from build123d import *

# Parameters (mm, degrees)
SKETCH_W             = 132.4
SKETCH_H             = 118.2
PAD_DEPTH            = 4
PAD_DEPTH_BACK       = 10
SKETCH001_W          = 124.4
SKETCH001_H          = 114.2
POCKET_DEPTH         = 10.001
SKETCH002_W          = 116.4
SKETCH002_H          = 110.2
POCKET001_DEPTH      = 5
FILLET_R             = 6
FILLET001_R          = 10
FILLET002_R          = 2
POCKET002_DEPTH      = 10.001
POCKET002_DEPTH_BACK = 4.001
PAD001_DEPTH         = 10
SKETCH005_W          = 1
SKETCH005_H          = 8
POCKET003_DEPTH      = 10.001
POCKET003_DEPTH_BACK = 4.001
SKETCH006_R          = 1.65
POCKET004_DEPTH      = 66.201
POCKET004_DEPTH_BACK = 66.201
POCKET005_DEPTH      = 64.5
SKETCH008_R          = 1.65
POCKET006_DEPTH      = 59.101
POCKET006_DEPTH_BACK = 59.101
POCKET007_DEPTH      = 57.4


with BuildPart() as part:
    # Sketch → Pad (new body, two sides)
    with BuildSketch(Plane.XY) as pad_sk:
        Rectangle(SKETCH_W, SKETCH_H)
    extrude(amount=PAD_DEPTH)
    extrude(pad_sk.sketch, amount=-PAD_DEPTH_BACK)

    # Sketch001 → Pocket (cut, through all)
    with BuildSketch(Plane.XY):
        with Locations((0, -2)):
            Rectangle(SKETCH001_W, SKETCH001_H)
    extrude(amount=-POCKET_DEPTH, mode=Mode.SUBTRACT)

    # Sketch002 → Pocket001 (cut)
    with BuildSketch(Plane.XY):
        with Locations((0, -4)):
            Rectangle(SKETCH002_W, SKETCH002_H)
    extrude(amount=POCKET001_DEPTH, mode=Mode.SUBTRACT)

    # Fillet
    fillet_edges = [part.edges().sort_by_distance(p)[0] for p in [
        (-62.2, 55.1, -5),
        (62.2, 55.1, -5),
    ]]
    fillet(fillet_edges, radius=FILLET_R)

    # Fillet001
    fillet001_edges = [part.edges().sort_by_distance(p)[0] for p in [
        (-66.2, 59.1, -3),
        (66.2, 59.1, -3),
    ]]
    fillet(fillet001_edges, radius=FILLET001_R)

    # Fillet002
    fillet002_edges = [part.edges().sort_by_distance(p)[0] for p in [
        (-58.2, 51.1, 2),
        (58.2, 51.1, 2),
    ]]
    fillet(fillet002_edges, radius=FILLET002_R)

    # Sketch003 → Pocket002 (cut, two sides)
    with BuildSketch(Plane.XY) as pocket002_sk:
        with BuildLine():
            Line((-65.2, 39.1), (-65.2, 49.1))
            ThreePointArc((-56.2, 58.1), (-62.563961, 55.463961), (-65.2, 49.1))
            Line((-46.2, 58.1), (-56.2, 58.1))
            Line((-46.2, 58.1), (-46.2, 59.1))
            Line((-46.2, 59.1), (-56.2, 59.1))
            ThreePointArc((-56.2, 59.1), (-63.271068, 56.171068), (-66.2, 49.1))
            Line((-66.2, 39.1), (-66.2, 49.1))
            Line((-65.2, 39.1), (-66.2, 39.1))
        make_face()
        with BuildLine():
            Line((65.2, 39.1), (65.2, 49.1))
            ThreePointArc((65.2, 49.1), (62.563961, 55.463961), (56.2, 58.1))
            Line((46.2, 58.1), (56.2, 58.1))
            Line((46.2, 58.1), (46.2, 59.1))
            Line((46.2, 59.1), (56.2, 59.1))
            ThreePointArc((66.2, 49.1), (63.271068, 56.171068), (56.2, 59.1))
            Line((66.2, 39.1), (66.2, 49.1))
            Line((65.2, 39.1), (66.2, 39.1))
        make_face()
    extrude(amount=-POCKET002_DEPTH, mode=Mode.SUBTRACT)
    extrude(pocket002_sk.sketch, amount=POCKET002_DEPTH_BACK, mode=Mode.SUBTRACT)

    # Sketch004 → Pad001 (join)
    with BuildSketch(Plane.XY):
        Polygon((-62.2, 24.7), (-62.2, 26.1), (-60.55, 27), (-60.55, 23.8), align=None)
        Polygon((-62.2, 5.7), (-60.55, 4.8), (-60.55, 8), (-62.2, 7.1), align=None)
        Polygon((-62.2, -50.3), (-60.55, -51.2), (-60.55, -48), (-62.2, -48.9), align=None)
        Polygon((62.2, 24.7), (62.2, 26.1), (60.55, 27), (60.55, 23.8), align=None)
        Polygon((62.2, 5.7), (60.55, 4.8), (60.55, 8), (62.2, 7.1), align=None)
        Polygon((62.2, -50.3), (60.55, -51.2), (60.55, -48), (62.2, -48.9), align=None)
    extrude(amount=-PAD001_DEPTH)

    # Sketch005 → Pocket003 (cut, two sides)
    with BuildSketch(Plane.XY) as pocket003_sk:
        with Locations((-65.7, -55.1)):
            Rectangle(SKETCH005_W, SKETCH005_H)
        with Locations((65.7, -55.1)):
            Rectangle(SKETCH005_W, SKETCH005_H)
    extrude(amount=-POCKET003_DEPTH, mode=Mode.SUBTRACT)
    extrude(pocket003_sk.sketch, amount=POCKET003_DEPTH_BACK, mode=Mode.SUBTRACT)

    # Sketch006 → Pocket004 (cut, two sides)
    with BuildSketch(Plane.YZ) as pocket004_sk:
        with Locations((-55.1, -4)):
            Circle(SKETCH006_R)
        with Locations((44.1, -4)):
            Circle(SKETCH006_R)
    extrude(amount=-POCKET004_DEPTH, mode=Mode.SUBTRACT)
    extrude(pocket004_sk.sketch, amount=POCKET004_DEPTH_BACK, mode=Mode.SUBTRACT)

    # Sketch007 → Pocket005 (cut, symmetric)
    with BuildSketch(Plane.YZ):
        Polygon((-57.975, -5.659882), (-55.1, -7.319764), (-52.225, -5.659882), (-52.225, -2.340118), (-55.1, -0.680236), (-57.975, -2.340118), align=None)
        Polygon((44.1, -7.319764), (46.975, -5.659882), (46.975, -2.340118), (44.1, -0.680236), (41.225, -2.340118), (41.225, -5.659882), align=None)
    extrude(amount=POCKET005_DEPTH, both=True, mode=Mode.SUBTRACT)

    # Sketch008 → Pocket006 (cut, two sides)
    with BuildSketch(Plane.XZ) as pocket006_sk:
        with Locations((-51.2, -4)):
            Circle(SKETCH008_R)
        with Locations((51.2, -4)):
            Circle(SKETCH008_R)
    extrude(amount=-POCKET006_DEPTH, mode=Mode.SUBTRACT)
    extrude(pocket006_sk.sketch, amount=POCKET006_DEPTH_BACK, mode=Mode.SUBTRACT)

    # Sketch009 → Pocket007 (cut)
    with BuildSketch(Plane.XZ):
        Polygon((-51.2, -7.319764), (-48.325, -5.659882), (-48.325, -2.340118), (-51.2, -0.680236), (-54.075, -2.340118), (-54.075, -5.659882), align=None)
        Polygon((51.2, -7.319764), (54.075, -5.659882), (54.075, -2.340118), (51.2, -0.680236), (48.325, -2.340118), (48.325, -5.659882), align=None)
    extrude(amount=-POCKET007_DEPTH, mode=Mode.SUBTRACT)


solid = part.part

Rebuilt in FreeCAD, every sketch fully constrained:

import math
import FreeCAD as App
import Part
import Sketcher

V = App.Vector
Q = App.Units.Quantity


def edges_at(feature, points):
    """Names of the edges that pass closest to the given points."""
    edges = feature.Shape.Edges
    near = lambda p: min(range(len(edges)), key=lambda i: edges[i].distToShape(Part.Vertex(*p))[0])
    return sorted({f"Edge{near(p) + 1}" for p in points})

doc = App.newDocument("Part")
params = doc.addObject("Spreadsheet::Sheet", "Params")
for row, (alias, value) in enumerate([
    ("sketch1_width", "132.4 mm"),
    ("sketch1_height", "118.2 mm"),
    ("pad1_length", "4 mm"),
    ("pad1_length2", "10 mm"),
    ("sketch2_width", "124.4 mm"),
    ("sketch2_height", "114.2 mm"),
    ("sketch3_width", "116.4 mm"),
    ("sketch3_height", "110.2 mm"),
    ("pocket2_length", "5 mm"),
    ("fillet_radius", "6 mm"),
    ("fillet2_radius", "10 mm"),
    ("fillet3_radius", "2 mm"),
    ("sketch4_radius", "9 mm"),
    ("sketch4_radius2", "9.999999 mm"),
    ("sketch4_width", "10 mm"),
    ("sketch5_height", "1.4 mm"),
    ("sketch5_height2", "3.2 mm"),
    ("pad2_length", "10 mm"),
    ("sketch6_width", "1 mm"),
    ("sketch6_height", "8 mm"),
    ("sketch7_diameter", "3.3 mm"),
    ("pocket6_length", "129 mm"),
    ("sketch9_diameter", "3.3 mm"),
    ("pocket8_length", "57.4 mm"),
], start=1):
    params.set(f"A{row}", alias)
    params.set(f"B{row}", "=" + value)
    params.setAlias(f"B{row}", alias)

body = doc.addObject("PartDesign::Body", "Body")

# Sketch on XY plane
sketch1 = doc.addObject("Sketcher::SketchObject", "Sketch")
body.addObject(sketch1)
sketch1.AttachmentSupport = (doc.XY_Plane, [""])
sketch1.MapMode = "FlatFace"
sketch1.addGeometry(Part.LineSegment(V(-66, 59, 0), V(-66, -59, 0)), False)
sketch1.addGeometry(Part.LineSegment(V(-66, -59, 0), V(66, -59, 0)), False)
sketch1.addGeometry(Part.LineSegment(V(66, -59, 0), V(66, 59, 0)), False)
sketch1.addGeometry(Part.LineSegment(V(66, 59, 0), V(-66, 59, 0)), False)
sketch1.addConstraint(Sketcher.Constraint("Coincident", 0, 2, 1, 1))
sketch1.addConstraint(Sketcher.Constraint("Coincident", 1, 2, 2, 1))
sketch1.addConstraint(Sketcher.Constraint("Coincident", 2, 2, 3, 1))
sketch1.addConstraint(Sketcher.Constraint("Coincident", 3, 2, 0, 1))
sketch1.addConstraint(Sketcher.Constraint("Vertical", 0))
sketch1.addConstraint(Sketcher.Constraint("Horizontal", 1))
sketch1.addConstraint(Sketcher.Constraint("Vertical", 2))
sketch1.addConstraint(Sketcher.Constraint("Horizontal", 3))
sketch1.addConstraint(Sketcher.Constraint("Symmetric", 0, 2, 2, 2, -1, 1))
sketch1.addConstraint(Sketcher.Constraint("DistanceX", 1, 1, 1, 2, Q("132.4 mm")))
sketch1.addConstraint(Sketcher.Constraint("DistanceY", 0, 2, 0, 1, Q("118.2 mm")))
sketch1.setExpression("Constraints[9]", "Params.sketch1_width")
sketch1.setExpression("Constraints[10]", "Params.sketch1_height")
pad1 = doc.addObject("PartDesign::Pad", "Pad")
body.addObject(pad1)
pad1.Profile = sketch1
pad1.Type = "TwoLengths"
pad1.setExpression("Length", "Params.pad1_length")
pad1.setExpression("Length2", "Params.pad1_length2")

# Sketch on XY plane
sketch2 = doc.addObject("Sketcher::SketchObject", "Sketch001")
body.addObject(sketch2)
sketch2.AttachmentSupport = (doc.XY_Plane, [""])
sketch2.MapMode = "FlatFace"
sketch2.addGeometry(Part.LineSegment(V(-62, 55, 0), V(-62, -59, 0)), False)
sketch2.addGeometry(Part.LineSegment(V(-62, -59, 0), V(62, -59, 0)), False)
sketch2.addGeometry(Part.LineSegment(V(62, -59, 0), V(62, 55, 0)), False)
sketch2.addGeometry(Part.LineSegment(V(62, 55, 0), V(-62, 55, 0)), False)
sketch2.addConstraint(Sketcher.Constraint("Coincident", 0, 2, 1, 1))
sketch2.addConstraint(Sketcher.Constraint("Coincident", 1, 2, 2, 1))
sketch2.addConstraint(Sketcher.Constraint("Coincident", 2, 2, 3, 1))
sketch2.addConstraint(Sketcher.Constraint("Coincident", 3, 2, 0, 1))
sketch2.addConstraint(Sketcher.Constraint("Vertical", 0))
sketch2.addConstraint(Sketcher.Constraint("Horizontal", 1))
sketch2.addConstraint(Sketcher.Constraint("Vertical", 2))
sketch2.addConstraint(Sketcher.Constraint("Horizontal", 3))
sketch2.addConstraint(Sketcher.Constraint("DistanceX", 1, 1, 1, 2, Q("124.4 mm")))
sketch2.addConstraint(Sketcher.Constraint("DistanceY", 0, 2, 0, 1, Q("114.2 mm")))
sketch2.addConstraint(Sketcher.Constraint("DistanceX", 0, 2, -1, 1, Q("62.2 mm")))
sketch2.addConstraint(Sketcher.Constraint("DistanceY", 0, 2, -1, 1, Q("59.1 mm")))
sketch2.setExpression("Constraints[8]", "Params.sketch2_width")
sketch2.setExpression("Constraints[9]", "Params.sketch2_height")
pocket1 = doc.addObject("PartDesign::Pocket", "Pocket")
body.addObject(pocket1)
pocket1.Profile = sketch2
pocket1.Type = "ThroughAll"

# Sketch on XY plane
sketch3 = doc.addObject("Sketcher::SketchObject", "Sketch002")
body.addObject(sketch3)
sketch3.AttachmentSupport = (doc.XY_Plane, [""])
sketch3.MapMode = "FlatFace"
sketch3.addGeometry(Part.LineSegment(V(-58, 51, 0), V(-58, -59, 0)), False)
sketch3.addGeometry(Part.LineSegment(V(-58, -59, 0), V(58, -59, 0)), False)
sketch3.addGeometry(Part.LineSegment(V(58, -59, 0), V(58, 51, 0)), False)
sketch3.addGeometry(Part.LineSegment(V(58, 51, 0), V(-58, 51, 0)), False)
sketch3.addConstraint(Sketcher.Constraint("Coincident", 0, 2, 1, 1))
sketch3.addConstraint(Sketcher.Constraint("Coincident", 1, 2, 2, 1))
sketch3.addConstraint(Sketcher.Constraint("Coincident", 2, 2, 3, 1))
sketch3.addConstraint(Sketcher.Constraint("Coincident", 3, 2, 0, 1))
sketch3.addConstraint(Sketcher.Constraint("Vertical", 0))
sketch3.addConstraint(Sketcher.Constraint("Horizontal", 1))
sketch3.addConstraint(Sketcher.Constraint("Vertical", 2))
sketch3.addConstraint(Sketcher.Constraint("Horizontal", 3))
sketch3.addConstraint(Sketcher.Constraint("DistanceX", 1, 1, 1, 2, Q("116.4 mm")))
sketch3.addConstraint(Sketcher.Constraint("DistanceY", 0, 2, 0, 1, Q("110.2 mm")))
sketch3.addConstraint(Sketcher.Constraint("DistanceX", 0, 2, -1, 1, Q("58.2 mm")))
sketch3.addConstraint(Sketcher.Constraint("DistanceY", 0, 2, -1, 1, Q("59.1 mm")))
sketch3.setExpression("Constraints[8]", "Params.sketch3_width")
sketch3.setExpression("Constraints[9]", "Params.sketch3_height")
pocket2 = doc.addObject("PartDesign::Pocket", "Pocket001")
body.addObject(pocket2)
pocket2.Profile = sketch3
pocket2.setExpression("Length", "Params.pocket2_length")
pocket2.Reversed = True
doc.recompute()

fillet = doc.addObject("PartDesign::Fillet", "Fillet")
body.addObject(fillet)
fillet.Base = (pocket2, edges_at(pocket2, [(-62.2, 55.1, -5), (62.2, 55.1, -5)]))
fillet.setExpression("Radius", "Params.fillet_radius")
doc.recompute()

fillet2 = doc.addObject("PartDesign::Fillet", "Fillet001")
body.addObject(fillet2)
fillet2.Base = (fillet, edges_at(fillet, [(-66.2, 59.1, -3), (66.2, 59.1, -3)]))
fillet2.setExpression("Radius", "Params.fillet2_radius")
doc.recompute()

fillet3 = doc.addObject("PartDesign::Fillet", "Fillet002")
body.addObject(fillet3)
fillet3.Base = (fillet2, edges_at(fillet2, [(-58.2, 51.1, 2), (58.2, 51.1, 2)]))
fillet3.setExpression("Radius", "Params.fillet3_radius")

# Sketch on XY plane
sketch4 = doc.addObject("Sketcher::SketchObject", "Sketch003")
body.addObject(sketch4)
sketch4.AttachmentSupport = (doc.XY_Plane, [""])
sketch4.MapMode = "FlatFace"
sketch4.addGeometry(Part.LineSegment(V(-65.2, 39.1, 0), V(-65.2, 49.1, 0)), False)
sketch4.addGeometry(Part.ArcOfCircle(Part.Circle(V(-56.2, 49.1, 0), V(0, 0, 1), 9), math.radians(90), math.radians(180)), False)
sketch4.addGeometry(Part.LineSegment(V(-56.2, 58.1, 0), V(-46.2, 58.1, 0)), False)
sketch4.addGeometry(Part.LineSegment(V(-46.2, 58.1, 0), V(-46.2, 59.1, 0)), False)
sketch4.addGeometry(Part.LineSegment(V(-46.2, 59.1, 0), V(-56.2, 59.1, 0)), False)
sketch4.addGeometry(Part.ArcOfCircle(Part.Circle(V(-56.2, 49.1, 0), V(0, 0, 1), 10), math.radians(90), math.radians(180)), False)
sketch4.addGeometry(Part.LineSegment(V(-66.2, 49.1, 0), V(-66.2, 39.1, 0)), False)
sketch4.addGeometry(Part.LineSegment(V(-66.2, 39.1, 0), V(-65.2, 39.1, 0)), False)
sketch4.addGeometry(Part.LineSegment(V(65.2, 49.1, 0), V(65.2, 39.1, 0)), False)
sketch4.addGeometry(Part.LineSegment(V(65.2, 39.1, 0), V(66.2, 39.1, 0)), False)
sketch4.addGeometry(Part.LineSegment(V(66.2, 39.1, 0), V(66.2, 49.1, 0)), False)
sketch4.addGeometry(Part.ArcOfCircle(Part.Circle(V(56.2, 49.1, 0), V(0, 0, 1), 10), math.radians(0), math.radians(90)), False)
sketch4.addGeometry(Part.LineSegment(V(56.2, 59.1, 0), V(46.2, 59.1, 0)), False)
sketch4.addGeometry(Part.LineSegment(V(46.2, 59.1, 0), V(46.2, 58.1, 0)), False)
sketch4.addGeometry(Part.LineSegment(V(46.2, 58.1, 0), V(56.2, 58.1, 0)), False)
sketch4.addGeometry(Part.ArcOfCircle(Part.Circle(V(56.2, 49.1, 0), V(0, 0, 1), 9), math.radians(0), math.radians(90)), False)
sketch4.addConstraint(Sketcher.Constraint("Tangent", 0, 2, 1, 2))
sketch4.addConstraint(Sketcher.Constraint("Tangent", 1, 1, 2, 1))
sketch4.addConstraint(Sketcher.Constraint("Coincident", 2, 2, 3, 1))
sketch4.addConstraint(Sketcher.Constraint("Coincident", 3, 2, 4, 1))
sketch4.addConstraint(Sketcher.Constraint("Tangent", 4, 2, 5, 1))
sketch4.addConstraint(Sketcher.Constraint("Tangent", 5, 2, 6, 1))
sketch4.addConstraint(Sketcher.Constraint("Coincident", 6, 2, 7, 1))
sketch4.addConstraint(Sketcher.Constraint("Coincident", 7, 2, 0, 1))
sketch4.addConstraint(Sketcher.Constraint("Coincident", 8, 2, 9, 1))
sketch4.addConstraint(Sketcher.Constraint("Coincident", 9, 2, 10, 1))
sketch4.addConstraint(Sketcher.Constraint("Tangent", 10, 2, 11, 1))
sketch4.addConstraint(Sketcher.Constraint("Tangent", 11, 2, 12, 1))
sketch4.addConstraint(Sketcher.Constraint("Coincident", 12, 2, 13, 1))
sketch4.addConstraint(Sketcher.Constraint("Coincident", 13, 2, 14, 1))
sketch4.addConstraint(Sketcher.Constraint("Tangent", 14, 2, 15, 2))
sketch4.addConstraint(Sketcher.Constraint("Tangent", 15, 1, 8, 1))
sketch4.addConstraint(Sketcher.Constraint("Vertical", 0))
sketch4.addConstraint(Sketcher.Constraint("Horizontal", 2))
sketch4.addConstraint(Sketcher.Constraint("Vertical", 3))
sketch4.addConstraint(Sketcher.Constraint("Horizontal", 4))
sketch4.addConstraint(Sketcher.Constraint("Vertical", 6))
sketch4.addConstraint(Sketcher.Constraint("Horizontal", 7))
sketch4.addConstraint(Sketcher.Constraint("Vertical", 8))
sketch4.addConstraint(Sketcher.Constraint("Horizontal", 9))
sketch4.addConstraint(Sketcher.Constraint("Vertical", 10))
sketch4.addConstraint(Sketcher.Constraint("Horizontal", 12))
sketch4.addConstraint(Sketcher.Constraint("Vertical", 13))
sketch4.addConstraint(Sketcher.Constraint("Horizontal", 14))
sketch4.addConstraint(Sketcher.Constraint("Coincident", 5, 3, 1, 3))
sketch4.addConstraint(Sketcher.Constraint("Coincident", 15, 3, 11, 3))
sketch4.addConstraint(Sketcher.Constraint("Equal", 5, 11))
sketch4.addConstraint(Sketcher.Constraint("Equal", 1, 15))
sketch4.addConstraint(Sketcher.Constraint("Symmetric", 1, 3, 11, 3, -2))
sketch4.addConstraint(Sketcher.Constraint("Horizontal", 7, 2, 8, 2))
sketch4.addConstraint(Sketcher.Constraint("Equal", 4, 12))
sketch4.addConstraint(Sketcher.Constraint("Equal", 14, 0))
sketch4.addConstraint(Sketcher.Constraint("Radius", 1, Q("9 mm")))
sketch4.addConstraint(Sketcher.Constraint("Radius", 5, Q("9.999999 mm")))
sketch4.addConstraint(Sketcher.Constraint("DistanceX", 2, 1, 2, 2, Q("10 mm")))
sketch4.addConstraint(Sketcher.Constraint("DistanceX", 1, 3, -1, 1, Q("56.2 mm")))
sketch4.addConstraint(Sketcher.Constraint("DistanceY", -1, 1, 1, 3, Q("49.1 mm")))
sketch4.setExpression("Constraints[36]", "Params.sketch4_radius")
sketch4.setExpression("Constraints[37]", "Params.sketch4_radius2")
sketch4.setExpression("Constraints[38]", "Params.sketch4_width")
pocket3 = doc.addObject("PartDesign::Pocket", "Pocket002")
body.addObject(pocket3)
pocket3.Profile = sketch4
pocket3.Type = "ThroughAll"
pocket3.Midplane = True

# Sketch on XY plane
sketch5 = doc.addObject("Sketcher::SketchObject", "Sketch004")
body.addObject(sketch5)
sketch5.AttachmentSupport = (doc.XY_Plane, [""])
sketch5.MapMode = "FlatFace"
sketch5.addGeometry(Part.LineSegment(V(-62.2, 26.1, 0), V(-62.2, 24.7, 0)), False)
sketch5.addGeometry(Part.LineSegment(V(-62.2, 24.7, 0), V(-60.5, 23.8, 0)), False)
sketch5.addGeometry(Part.LineSegment(V(-60.5, 23.8, 0), V(-60.5, 27, 0)), False)
sketch5.addGeometry(Part.LineSegment(V(-60.5, 27, 0), V(-62.2, 26.1, 0)), False)
sketch5.addGeometry(Part.LineSegment(V(-62.2, 5.7, 0), V(-60.5, 4.8, 0)), False)
sketch5.addGeometry(Part.LineSegment(V(-60.5, 4.8, 0), V(-60.5, 8, 0)), False)
sketch5.addGeometry(Part.LineSegment(V(-60.5, 8, 0), V(-62.2, 7.1, 0)), False)
sketch5.addGeometry(Part.LineSegment(V(-62.2, 7.1, 0), V(-62.2, 5.7, 0)), False)
sketch5.addGeometry(Part.LineSegment(V(-62.2, -50.3, 0), V(-60.5, -51.2, 0)), False)
sketch5.addGeometry(Part.LineSegment(V(-60.5, -51.2, 0), V(-60.5, -48, 0)), False)
sketch5.addGeometry(Part.LineSegment(V(-60.5, -48, 0), V(-62.2, -48.9, 0)), False)
sketch5.addGeometry(Part.LineSegment(V(-62.2, -48.9, 0), V(-62.2, -50.3, 0)), False)
sketch5.addGeometry(Part.LineSegment(V(62.2, 24.7, 0), V(62.2, 26.1, 0)), False)
sketch5.addGeometry(Part.LineSegment(V(62.2, 26.1, 0), V(60.5, 27, 0)), False)
sketch5.addGeometry(Part.LineSegment(V(60.5, 27, 0), V(60.5, 23.8, 0)), False)
sketch5.addGeometry(Part.LineSegment(V(60.5, 23.8, 0), V(62.2, 24.7, 0)), False)
sketch5.addGeometry(Part.LineSegment(V(60.5, 4.8, 0), V(62.2, 5.7, 0)), False)
sketch5.addGeometry(Part.LineSegment(V(62.2, 5.7, 0), V(62.2, 7.1, 0)), False)
sketch5.addGeometry(Part.LineSegment(V(62.2, 7.1, 0), V(60.5, 8, 0)), False)
sketch5.addGeometry(Part.LineSegment(V(60.5, 8, 0), V(60.5, 4.8, 0)), False)
sketch5.addGeometry(Part.LineSegment(V(60.5, -51.2, 0), V(62.2, -50.3, 0)), False)
sketch5.addGeometry(Part.LineSegment(V(62.2, -50.3, 0), V(62.2, -48.9, 0)), False)
sketch5.addGeometry(Part.LineSegment(V(62.2, -48.9, 0), V(60.5, -48, 0)), False)
sketch5.addGeometry(Part.LineSegment(V(60.5, -48, 0), V(60.5, -51.2, 0)), False)
sketch5.addConstraint(Sketcher.Constraint("Coincident", 0, 2, 1, 1))
sketch5.addConstraint(Sketcher.Constraint("Coincident", 1, 2, 2, 1))
sketch5.addConstraint(Sketcher.Constraint("Coincident", 2, 2, 3, 1))
sketch5.addConstraint(Sketcher.Constraint("Coincident", 3, 2, 0, 1))
sketch5.addConstraint(Sketcher.Constraint("Coincident", 4, 2, 5, 1))
sketch5.addConstraint(Sketcher.Constraint("Coincident", 5, 2, 6, 1))
sketch5.addConstraint(Sketcher.Constraint("Coincident", 6, 2, 7, 1))
sketch5.addConstraint(Sketcher.Constraint("Coincident", 7, 2, 4, 1))
sketch5.addConstraint(Sketcher.Constraint("Coincident", 8, 2, 9, 1))
sketch5.addConstraint(Sketcher.Constraint("Coincident", 9, 2, 10, 1))
sketch5.addConstraint(Sketcher.Constraint("Coincident", 10, 2, 11, 1))
sketch5.addConstraint(Sketcher.Constraint("Coincident", 11, 2, 8, 1))
sketch5.addConstraint(Sketcher.Constraint("Coincident", 12, 2, 13, 1))
sketch5.addConstraint(Sketcher.Constraint("Coincident", 13, 2, 14, 1))
sketch5.addConstraint(Sketcher.Constraint("Coincident", 14, 2, 15, 1))
sketch5.addConstraint(Sketcher.Constraint("Coincident", 15, 2, 12, 1))
sketch5.addConstraint(Sketcher.Constraint("Coincident", 16, 2, 17, 1))
sketch5.addConstraint(Sketcher.Constraint("Coincident", 17, 2, 18, 1))
sketch5.addConstraint(Sketcher.Constraint("Coincident", 18, 2, 19, 1))
sketch5.addConstraint(Sketcher.Constraint("Coincident", 19, 2, 16, 1))
sketch5.addConstraint(Sketcher.Constraint("Coincident", 20, 2, 21, 1))
sketch5.addConstraint(Sketcher.Constraint("Coincident", 21, 2, 22, 1))
sketch5.addConstraint(Sketcher.Constraint("Coincident", 22, 2, 23, 1))
sketch5.addConstraint(Sketcher.Constraint("Coincident", 23, 2, 20, 1))
sketch5.addConstraint(Sketcher.Constraint("Vertical", 0))
sketch5.addConstraint(Sketcher.Constraint("Vertical", 2))
sketch5.addConstraint(Sketcher.Constraint("Vertical", 5))
sketch5.addConstraint(Sketcher.Constraint("Vertical", 7))
sketch5.addConstraint(Sketcher.Constraint("Vertical", 9))
sketch5.addConstraint(Sketcher.Constraint("Vertical", 11))
sketch5.addConstraint(Sketcher.Constraint("Vertical", 12))
sketch5.addConstraint(Sketcher.Constraint("Vertical", 14))
sketch5.addConstraint(Sketcher.Constraint("Vertical", 17))
sketch5.addConstraint(Sketcher.Constraint("Vertical", 19))
sketch5.addConstraint(Sketcher.Constraint("Vertical", 21))
sketch5.addConstraint(Sketcher.Constraint("Vertical", 23))
sketch5.addConstraint(Sketcher.Constraint("Symmetric", 3, 2, 12, 2, -2))
sketch5.addConstraint(Sketcher.Constraint("Symmetric", 2, 2, 13, 2, -2))
sketch5.addConstraint(Sketcher.Constraint("Symmetric", 7, 2, 16, 2, -2))
sketch5.addConstraint(Sketcher.Constraint("Symmetric", 5, 2, 18, 2, -2))
sketch5.addConstraint(Sketcher.Constraint("Symmetric", 11, 2, 20, 2, -2))
sketch5.addConstraint(Sketcher.Constraint("Symmetric", 9, 2, 22, 2, -2))
sketch5.addConstraint(Sketcher.Constraint("Parallel", 1, 4))
sketch5.addConstraint(Sketcher.Constraint("Parallel", 3, 6))
sketch5.addConstraint(Sketcher.Constraint("Parallel", 4, 8))
sketch5.addConstraint(Sketcher.Constraint("Parallel", 6, 10))
sketch5.addConstraint(Sketcher.Constraint("Parallel", 8, 13))
sketch5.addConstraint(Sketcher.Constraint("Parallel", 10, 15))
sketch5.addConstraint(Sketcher.Constraint("Parallel", 15, 16))
sketch5.addConstraint(Sketcher.Constraint("Parallel", 13, 18))
sketch5.addConstraint(Sketcher.Constraint("Parallel", 16, 20))
sketch5.addConstraint(Sketcher.Constraint("Parallel", 18, 22))
sketch5.addConstraint(Sketcher.Constraint("Horizontal", 1, 2, 14, 2))
sketch5.addConstraint(Sketcher.Constraint("Vertical", 2, 2, 4, 2))
sketch5.addConstraint(Sketcher.Constraint("Vertical", 3, 2, 6, 2))
sketch5.addConstraint(Sketcher.Constraint("Vertical", 5, 2, 8, 2))
sketch5.addConstraint(Sketcher.Constraint("Vertical", 7, 2, 10, 2))
sketch5.addConstraint(Sketcher.Constraint("Equal", 2, 5))
sketch5.addConstraint(Sketcher.Constraint("Equal", 5, 9))
sketch5.addConstraint(Sketcher.Constraint("DistanceY", 0, 2, 0, 1, Q("1.4 mm")))
sketch5.addConstraint(Sketcher.Constraint("DistanceY", 2, 1, 2, 2, Q("3.2 mm")))
sketch5.addConstraint(Sketcher.Constraint("DistanceY", -1, 1, 2, 2, Q("27 mm")))
sketch5.addConstraint(Sketcher.Constraint("DistanceY", -1, 1, 5, 2, Q("8 mm")))
sketch5.addConstraint(Sketcher.Constraint("DistanceY", 9, 2, -1, 1, Q("48 mm")))
sketch5.addConstraint(Sketcher.Constraint("DistanceX", 0, 2, -1, 1, Q("62.2 mm")))
sketch5.addConstraint(Sketcher.Constraint("DistanceX", 2, 2, 13, 2, Q("121.1 mm")))
sketch5.setExpression("Constraints[59]", "Params.sketch5_height")
sketch5.setExpression("Constraints[60]", "Params.sketch5_height2")
pad2 = doc.addObject("PartDesign::Pad", "Pad001")
body.addObject(pad2)
pad2.Profile = sketch5
pad2.setExpression("Length", "Params.pad2_length")
pad2.Reversed = True

# Sketch on XY plane
sketch6 = doc.addObject("Sketcher::SketchObject", "Sketch005")
body.addObject(sketch6)
sketch6.AttachmentSupport = (doc.XY_Plane, [""])
sketch6.MapMode = "FlatFace"
sketch6.addGeometry(Part.LineSegment(V(-66.2, -51.1, 0), V(-66.2, -59.1, 0)), False)
sketch6.addGeometry(Part.LineSegment(V(-66.2, -59.1, 0), V(-65.2, -59.1, 0)), False)
sketch6.addGeometry(Part.LineSegment(V(-65.2, -59.1, 0), V(-65.2, -51.1, 0)), False)
sketch6.addGeometry(Part.LineSegment(V(-65.2, -51.1, 0), V(-66.2, -51.1, 0)), False)
sketch6.addGeometry(Part.LineSegment(V(65.2, -51.1, 0), V(65.2, -59.1, 0)), False)
sketch6.addGeometry(Part.LineSegment(V(65.2, -59.1, 0), V(66.2, -59.1, 0)), False)
sketch6.addGeometry(Part.LineSegment(V(66.2, -59.1, 0), V(66.2, -51.1, 0)), False)
sketch6.addGeometry(Part.LineSegment(V(66.2, -51.1, 0), V(65.2, -51.1, 0)), False)
sketch6.addConstraint(Sketcher.Constraint("Coincident", 0, 2, 1, 1))
sketch6.addConstraint(Sketcher.Constraint("Coincident", 1, 2, 2, 1))
sketch6.addConstraint(Sketcher.Constraint("Coincident", 2, 2, 3, 1))
sketch6.addConstraint(Sketcher.Constraint("Coincident", 3, 2, 0, 1))
sketch6.addConstraint(Sketcher.Constraint("Coincident", 4, 2, 5, 1))
sketch6.addConstraint(Sketcher.Constraint("Coincident", 5, 2, 6, 1))
sketch6.addConstraint(Sketcher.Constraint("Coincident", 6, 2, 7, 1))
sketch6.addConstraint(Sketcher.Constraint("Coincident", 7, 2, 4, 1))
sketch6.addConstraint(Sketcher.Constraint("Vertical", 0))
sketch6.addConstraint(Sketcher.Constraint("Horizontal", 1))
sketch6.addConstraint(Sketcher.Constraint("Vertical", 2))
sketch6.addConstraint(Sketcher.Constraint("Horizontal", 3))
sketch6.addConstraint(Sketcher.Constraint("Vertical", 4))
sketch6.addConstraint(Sketcher.Constraint("Horizontal", 5))
sketch6.addConstraint(Sketcher.Constraint("Vertical", 6))
sketch6.addConstraint(Sketcher.Constraint("Horizontal", 7))
sketch6.addConstraint(Sketcher.Constraint("Symmetric", 1, 2, 4, 2, -2))
sketch6.addConstraint(Sketcher.Constraint("Symmetric", 3, 2, 6, 2, -2))
sketch6.addConstraint(Sketcher.Constraint("DistanceX", 1, 1, 1, 2, Q("1 mm")))
sketch6.addConstraint(Sketcher.Constraint("DistanceY", 0, 2, 0, 1, Q("8 mm")))
sketch6.addConstraint(Sketcher.Constraint("DistanceX", 0, 2, -1, 1, Q("66.2 mm")))
sketch6.addConstraint(Sketcher.Constraint("DistanceY", 0, 2, -1, 1, Q("59.1 mm")))
sketch6.setExpression("Constraints[18]", "Params.sketch6_width")
sketch6.setExpression("Constraints[19]", "Params.sketch6_height")
pocket4 = doc.addObject("PartDesign::Pocket", "Pocket003")
body.addObject(pocket4)
pocket4.Profile = sketch6
pocket4.Type = "ThroughAll"
pocket4.Midplane = True

# Sketch on YZ plane
sketch7 = doc.addObject("Sketcher::SketchObject", "Sketch006")
body.addObject(sketch7)
sketch7.AttachmentSupport = (doc.YZ_Plane, [""])
sketch7.MapMode = "FlatFace"
sketch7.addGeometry(Part.Circle(V(-55.1, -4, 0), V(0, 0, 1), 1.6), False)
sketch7.addGeometry(Part.Circle(V(44.1, -4, 0), V(0, 0, 1), 1.6), False)
sketch7.addConstraint(Sketcher.Constraint("Equal", 0, 1))
sketch7.addConstraint(Sketcher.Constraint("Horizontal", 0, 3, 1, 3))
sketch7.addConstraint(Sketcher.Constraint("Diameter", 0, Q("3.3 mm")))
sketch7.addConstraint(Sketcher.Constraint("DistanceY", 0, 3, -1, 1, Q("4 mm")))
sketch7.addConstraint(Sketcher.Constraint("DistanceX", 0, 3, -1, 1, Q("55.1 mm")))
sketch7.addConstraint(Sketcher.Constraint("DistanceX", -1, 1, 1, 3, Q("44.1 mm")))
sketch7.setExpression("Constraints[2]", "Params.sketch7_diameter")
pocket5 = doc.addObject("PartDesign::Pocket", "Pocket004")
body.addObject(pocket5)
pocket5.Profile = sketch7
pocket5.Type = "ThroughAll"
pocket5.Midplane = True

# Sketch on YZ plane
sketch8 = doc.addObject("Sketcher::SketchObject", "Sketch007")
body.addObject(sketch8)
sketch8.AttachmentSupport = (doc.YZ_Plane, [""])
sketch8.MapMode = "FlatFace"
sketch8.addGeometry(Part.LineSegment(V(-58, -5.7, 0), V(-55.1, -7.3, 0)), False)
sketch8.addGeometry(Part.LineSegment(V(-55.1, -7.3, 0), V(-52.2, -5.7, 0)), False)
sketch8.addGeometry(Part.LineSegment(V(-52.2, -5.7, 0), V(-52.2, -2.3, 0)), False)
sketch8.addGeometry(Part.LineSegment(V(-52.2, -2.3, 0), V(-55.1, -0.7, 0)), False)
sketch8.addGeometry(Part.LineSegment(V(-55.1, -0.7, 0), V(-58, -2.3, 0)), False)
sketch8.addGeometry(Part.LineSegment(V(-58, -2.3, 0), V(-58, -5.7, 0)), False)
sketch8.addGeometry(Part.LineSegment(V(44.1, -7.3, 0), V(47, -5.7, 0)), False)
sketch8.addGeometry(Part.LineSegment(V(47, -5.7, 0), V(47, -2.3, 0)), False)
sketch8.addGeometry(Part.LineSegment(V(47, -2.3, 0), V(44.1, -0.7, 0)), False)
sketch8.addGeometry(Part.LineSegment(V(44.1, -0.7, 0), V(41.2, -2.3, 0)), False)
sketch8.addGeometry(Part.LineSegment(V(41.2, -2.3, 0), V(41.2, -5.7, 0)), False)
sketch8.addGeometry(Part.LineSegment(V(41.2, -5.7, 0), V(44.1, -7.3, 0)), False)
sketch8.addConstraint(Sketcher.Constraint("Coincident", 0, 2, 1, 1))
sketch8.addConstraint(Sketcher.Constraint("Coincident", 1, 2, 2, 1))
sketch8.addConstraint(Sketcher.Constraint("Coincident", 2, 2, 3, 1))
sketch8.addConstraint(Sketcher.Constraint("Coincident", 3, 2, 4, 1))
sketch8.addConstraint(Sketcher.Constraint("Coincident", 4, 2, 5, 1))
sketch8.addConstraint(Sketcher.Constraint("Coincident", 5, 2, 0, 1))
sketch8.addConstraint(Sketcher.Constraint("Coincident", 6, 2, 7, 1))
sketch8.addConstraint(Sketcher.Constraint("Coincident", 7, 2, 8, 1))
sketch8.addConstraint(Sketcher.Constraint("Coincident", 8, 2, 9, 1))
sketch8.addConstraint(Sketcher.Constraint("Coincident", 9, 2, 10, 1))
sketch8.addConstraint(Sketcher.Constraint("Coincident", 10, 2, 11, 1))
sketch8.addConstraint(Sketcher.Constraint("Coincident", 11, 2, 6, 1))
sketch8.addConstraint(Sketcher.Constraint("Vertical", 2))
sketch8.addConstraint(Sketcher.Constraint("Vertical", 5))
sketch8.addConstraint(Sketcher.Constraint("Vertical", 7))
sketch8.addConstraint(Sketcher.Constraint("Vertical", 10))
sketch8.addConstraint(Sketcher.Constraint("Parallel", 0, 3))
sketch8.addConstraint(Sketcher.Constraint("Parallel", 1, 4))
sketch8.addConstraint(Sketcher.Constraint("Parallel", 4, 6))
sketch8.addConstraint(Sketcher.Constraint("Parallel", 3, 8))
sketch8.addConstraint(Sketcher.Constraint("Parallel", 6, 9))
sketch8.addConstraint(Sketcher.Constraint("Parallel", 8, 11))
sketch8.addConstraint(Sketcher.Constraint("Horizontal", 2, 2, 4, 2))
sketch8.addConstraint(Sketcher.Constraint("Horizontal", 1, 2, 5, 2))
sketch8.addConstraint(Sketcher.Constraint("Horizontal", 5, 2, 6, 2))
sketch8.addConstraint(Sketcher.Constraint("Horizontal", 4, 2, 7, 2))
sketch8.addConstraint(Sketcher.Constraint("Horizontal", 3, 2, 8, 2))
sketch8.addConstraint(Sketcher.Constraint("Horizontal", 7, 2, 9, 2))
sketch8.addConstraint(Sketcher.Constraint("Horizontal", 6, 2, 10, 2))
sketch8.addConstraint(Sketcher.Constraint("Vertical", 0, 2, 3, 2))
sketch8.addConstraint(Sketcher.Constraint("Angle", 0, Q("-30 deg")))
sketch8.addConstraint(Sketcher.Constraint("DistanceX", 0, 2, -1, 1, Q("55.1 mm")))
sketch8.addConstraint(Sketcher.Constraint("DistanceX", -1, 1, 8, 2, Q("44.1 mm")))
sketch8.addConstraint(Sketcher.Constraint("DistanceX", 4, 2, 2, 2, Q("5.75 mm")))
sketch8.addConstraint(Sketcher.Constraint("DistanceY", 2, 1, 2, 2, Q("3.319764 mm")))
sketch8.addConstraint(Sketcher.Constraint("DistanceY", 1, 2, -1, 1, Q("5.659882 mm")))
pocket6 = doc.addObject("PartDesign::Pocket", "Pocket005")
body.addObject(pocket6)
pocket6.Profile = sketch8
pocket6.setExpression("Length", "Params.pocket6_length")
pocket6.Midplane = True

# Sketch on XZ plane
sketch9 = doc.addObject("Sketcher::SketchObject", "Sketch008")
body.addObject(sketch9)
sketch9.AttachmentSupport = (doc.XZ_Plane, [""])
sketch9.MapMode = "FlatFace"
sketch9.addGeometry(Part.Circle(V(-51.2, -4, 0), V(0, 0, 1), 1.6), False)
sketch9.addGeometry(Part.Circle(V(51.2, -4, 0), V(0, 0, 1), 1.6), False)
sketch9.addConstraint(Sketcher.Constraint("Equal", 0, 1))
sketch9.addConstraint(Sketcher.Constraint("Symmetric", 0, 3, 1, 3, -2))
sketch9.addConstraint(Sketcher.Constraint("Diameter", 0, Q("3.3 mm")))
sketch9.addConstraint(Sketcher.Constraint("DistanceY", 0, 3, -1, 1, Q("4 mm")))
sketch9.addConstraint(Sketcher.Constraint("DistanceX", 0, 3, -1, 1, Q("51.2 mm")))
sketch9.setExpression("Constraints[2]", "Params.sketch9_diameter")
pocket7 = doc.addObject("PartDesign::Pocket", "Pocket006")
body.addObject(pocket7)
pocket7.Profile = sketch9
pocket7.Type = "ThroughAll"
pocket7.Midplane = True

# Sketch on XZ plane
sketch10 = doc.addObject("Sketcher::SketchObject", "Sketch009")
body.addObject(sketch10)
sketch10.AttachmentSupport = (doc.XZ_Plane, [""])
sketch10.MapMode = "FlatFace"
sketch10.addGeometry(Part.LineSegment(V(-51.2, -7.3, 0), V(-48.3, -5.7, 0)), False)
sketch10.addGeometry(Part.LineSegment(V(-48.3, -5.7, 0), V(-48.3, -2.3, 0)), False)
sketch10.addGeometry(Part.LineSegment(V(-48.3, -2.3, 0), V(-51.2, -0.7, 0)), False)
sketch10.addGeometry(Part.LineSegment(V(-51.2, -0.7, 0), V(-54.1, -2.3, 0)), False)
sketch10.addGeometry(Part.LineSegment(V(-54.1, -2.3, 0), V(-54.1, -5.7, 0)), False)
sketch10.addGeometry(Part.LineSegment(V(-54.1, -5.7, 0), V(-51.2, -7.3, 0)), False)
sketch10.addGeometry(Part.LineSegment(V(51.2, -7.3, 0), V(54.1, -5.7, 0)), False)
sketch10.addGeometry(Part.LineSegment(V(54.1, -5.7, 0), V(54.1, -2.3, 0)), False)
sketch10.addGeometry(Part.LineSegment(V(54.1, -2.3, 0), V(51.2, -0.7, 0)), False)
sketch10.addGeometry(Part.LineSegment(V(51.2, -0.7, 0), V(48.3, -2.3, 0)), False)
sketch10.addGeometry(Part.LineSegment(V(48.3, -2.3, 0), V(48.3, -5.7, 0)), False)
sketch10.addGeometry(Part.LineSegment(V(48.3, -5.7, 0), V(51.2, -7.3, 0)), False)
sketch10.addConstraint(Sketcher.Constraint("Coincident", 0, 2, 1, 1))
sketch10.addConstraint(Sketcher.Constraint("Coincident", 1, 2, 2, 1))
sketch10.addConstraint(Sketcher.Constraint("Coincident", 2, 2, 3, 1))
sketch10.addConstraint(Sketcher.Constraint("Coincident", 3, 2, 4, 1))
sketch10.addConstraint(Sketcher.Constraint("Coincident", 4, 2, 5, 1))
sketch10.addConstraint(Sketcher.Constraint("Coincident", 5, 2, 0, 1))
sketch10.addConstraint(Sketcher.Constraint("Coincident", 6, 2, 7, 1))
sketch10.addConstraint(Sketcher.Constraint("Coincident", 7, 2, 8, 1))
sketch10.addConstraint(Sketcher.Constraint("Coincident", 8, 2, 9, 1))
sketch10.addConstraint(Sketcher.Constraint("Coincident", 9, 2, 10, 1))
sketch10.addConstraint(Sketcher.Constraint("Coincident", 10, 2, 11, 1))
sketch10.addConstraint(Sketcher.Constraint("Coincident", 11, 2, 6, 1))
sketch10.addConstraint(Sketcher.Constraint("Vertical", 1))
sketch10.addConstraint(Sketcher.Constraint("Vertical", 4))
sketch10.addConstraint(Sketcher.Constraint("Vertical", 7))
sketch10.addConstraint(Sketcher.Constraint("Vertical", 10))
sketch10.addConstraint(Sketcher.Constraint("Symmetric", 4, 2, 6, 2, -2))
sketch10.addConstraint(Sketcher.Constraint("Symmetric", 2, 2, 8, 2, -2))
sketch10.addConstraint(Sketcher.Constraint("Symmetric", 1, 2, 9, 2, -2))
sketch10.addConstraint(Sketcher.Constraint("Symmetric", 5, 2, 11, 2, -2))
sketch10.addConstraint(Sketcher.Constraint("Parallel", 0, 3))
sketch10.addConstraint(Sketcher.Constraint("Parallel", 2, 5))
sketch10.addConstraint(Sketcher.Constraint("Parallel", 3, 6))
sketch10.addConstraint(Sketcher.Constraint("Parallel", 5, 8))
sketch10.addConstraint(Sketcher.Constraint("Parallel", 8, 11))
sketch10.addConstraint(Sketcher.Constraint("Horizontal", 1, 2, 3, 2))
sketch10.addConstraint(Sketcher.Constraint("Horizontal", 0, 2, 4, 2))
sketch10.addConstraint(Sketcher.Constraint("Angle", 0, Q("30 deg")))
sketch10.addConstraint(Sketcher.Constraint("DistanceX", 2, 2, -1, 1, Q("51.2 mm")))
sketch10.addConstraint(Sketcher.Constraint("DistanceX", 3, 2, 1, 2, Q("5.75 mm")))
sketch10.addConstraint(Sketcher.Constraint("DistanceY", 1, 1, 1, 2, Q("3.319764 mm")))
sketch10.addConstraint(Sketcher.Constraint("DistanceY", 0, 2, -1, 1, Q("5.659882 mm")))
pocket8 = doc.addObject("PartDesign::Pocket", "Pocket007")
body.addObject(pocket8)
pocket8.Profile = sketch10
pocket8.setExpression("Length", "Params.pocket8_length")

doc.recompute()
